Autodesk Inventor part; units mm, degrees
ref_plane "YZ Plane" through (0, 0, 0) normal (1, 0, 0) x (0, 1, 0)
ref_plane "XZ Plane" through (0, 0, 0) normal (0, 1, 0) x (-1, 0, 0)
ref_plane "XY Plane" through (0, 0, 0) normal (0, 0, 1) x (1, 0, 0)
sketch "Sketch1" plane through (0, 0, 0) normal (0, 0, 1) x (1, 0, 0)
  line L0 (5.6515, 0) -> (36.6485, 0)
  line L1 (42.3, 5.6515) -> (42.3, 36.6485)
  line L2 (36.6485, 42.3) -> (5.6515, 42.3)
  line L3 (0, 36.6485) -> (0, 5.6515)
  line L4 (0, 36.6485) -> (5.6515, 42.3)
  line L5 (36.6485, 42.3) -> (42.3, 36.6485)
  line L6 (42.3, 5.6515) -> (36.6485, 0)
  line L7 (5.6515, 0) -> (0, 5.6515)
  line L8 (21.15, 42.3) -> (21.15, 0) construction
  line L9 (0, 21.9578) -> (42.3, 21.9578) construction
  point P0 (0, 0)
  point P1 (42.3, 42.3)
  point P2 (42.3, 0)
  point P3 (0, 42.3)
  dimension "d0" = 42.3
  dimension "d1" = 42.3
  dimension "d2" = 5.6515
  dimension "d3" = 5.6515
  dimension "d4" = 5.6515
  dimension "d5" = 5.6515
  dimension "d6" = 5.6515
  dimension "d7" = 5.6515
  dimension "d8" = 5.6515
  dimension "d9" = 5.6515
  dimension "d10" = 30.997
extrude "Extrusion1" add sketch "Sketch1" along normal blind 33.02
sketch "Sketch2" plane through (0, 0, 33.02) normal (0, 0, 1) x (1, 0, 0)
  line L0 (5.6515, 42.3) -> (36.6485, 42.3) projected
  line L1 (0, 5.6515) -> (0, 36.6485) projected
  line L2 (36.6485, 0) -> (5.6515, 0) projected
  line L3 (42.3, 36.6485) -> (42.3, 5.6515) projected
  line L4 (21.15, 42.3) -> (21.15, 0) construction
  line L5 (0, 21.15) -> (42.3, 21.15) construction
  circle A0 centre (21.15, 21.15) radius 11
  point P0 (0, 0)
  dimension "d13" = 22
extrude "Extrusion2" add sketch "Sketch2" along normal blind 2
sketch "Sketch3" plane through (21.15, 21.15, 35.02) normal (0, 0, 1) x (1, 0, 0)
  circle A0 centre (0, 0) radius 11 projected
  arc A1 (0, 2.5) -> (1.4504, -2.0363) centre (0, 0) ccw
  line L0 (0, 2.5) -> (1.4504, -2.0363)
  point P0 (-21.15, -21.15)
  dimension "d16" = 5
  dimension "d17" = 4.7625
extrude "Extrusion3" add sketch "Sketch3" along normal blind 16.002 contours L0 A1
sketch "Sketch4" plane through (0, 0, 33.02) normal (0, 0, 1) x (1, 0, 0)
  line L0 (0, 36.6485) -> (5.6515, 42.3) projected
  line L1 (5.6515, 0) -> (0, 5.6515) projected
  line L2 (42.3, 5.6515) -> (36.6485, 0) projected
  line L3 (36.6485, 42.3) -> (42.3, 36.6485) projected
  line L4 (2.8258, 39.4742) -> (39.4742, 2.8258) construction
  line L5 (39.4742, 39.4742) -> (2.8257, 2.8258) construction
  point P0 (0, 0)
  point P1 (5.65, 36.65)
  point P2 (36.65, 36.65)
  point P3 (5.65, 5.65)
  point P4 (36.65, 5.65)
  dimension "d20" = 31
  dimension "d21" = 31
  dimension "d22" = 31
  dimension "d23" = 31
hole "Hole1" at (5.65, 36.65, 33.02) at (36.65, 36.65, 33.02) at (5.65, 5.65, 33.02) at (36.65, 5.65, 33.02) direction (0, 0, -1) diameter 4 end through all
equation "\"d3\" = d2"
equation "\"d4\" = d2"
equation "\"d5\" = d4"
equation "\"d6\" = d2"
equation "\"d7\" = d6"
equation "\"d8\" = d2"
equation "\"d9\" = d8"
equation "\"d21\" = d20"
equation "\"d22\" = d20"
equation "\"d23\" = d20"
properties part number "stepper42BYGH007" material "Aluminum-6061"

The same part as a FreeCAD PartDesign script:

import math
import FreeCAD as App
import Part
import Sketcher

V = App.Vector
Q = App.Units.Quantity

doc = App.newDocument("Part")
body = doc.addObject("PartDesign::Body", "Body")

# Sketch on XY plane
sketch1 = body.newObject("Sketcher::SketchObject", "Sketch")
sketch1.AttachmentSupport = (doc.getObject("XY_Plane"), [""])
sketch1.MapMode = "FlatFace"
sketch1.addGeometry([
    Part.LineSegment(V(0, 6, 0), V(6, 0, 0)),  # 0
    Part.LineSegment(V(6, 0, 0), V(37, 0, 0)),  # 1
    Part.LineSegment(V(37, 0, 0), V(42, 6, 0)),  # 2
    Part.LineSegment(V(42, 6, 0), V(42, 37, 0)),  # 3
    Part.LineSegment(V(42, 37, 0), V(37, 42, 0)),  # 4
    Part.LineSegment(V(37, 42, 0), V(6, 42, 0)),  # 5
    Part.LineSegment(V(6, 42, 0), V(0, 37, 0)),  # 6
    Part.LineSegment(V(0, 37, 0), V(0, 6, 0)),  # 7
], False)
sketch1.addConstraint([
    Sketcher.Constraint("Coincident", 0, 2, 1, 1),
    Sketcher.Constraint("Coincident", 1, 2, 2, 1),
    Sketcher.Constraint("Coincident", 2, 2, 3, 1),
    Sketcher.Constraint("Coincident", 3, 2, 4, 1),
    Sketcher.Constraint("Coincident", 4, 2, 5, 1),
    Sketcher.Constraint("Coincident", 5, 2, 6, 1),
    Sketcher.Constraint("Coincident", 6, 2, 7, 1),
    Sketcher.Constraint("Coincident", 7, 2, 0, 1),
    Sketcher.Constraint("Horizontal", 1),
    Sketcher.Constraint("Vertical", 3),
    Sketcher.Constraint("Horizontal", 5),
    Sketcher.Constraint("Vertical", 7),
    Sketcher.Constraint("PointOnObject", 0, 2, -1),
    Sketcher.Constraint("PointOnObject", 6, 2, -2),
    Sketcher.Constraint("Perpendicular", 0, 2),
    Sketcher.Constraint("Perpendicular", 2, 4),
    Sketcher.Constraint("Perpendicular", 4, 6),
    Sketcher.Constraint("Horizontal", 3, 2, 6, 2),
    Sketcher.Constraint("Horizontal", 2, 2, 7, 2),
    Sketcher.Constraint("Vertical", 1, 2, 4, 2),
    Sketcher.Constraint("Vertical", 0, 2, 5, 2),
    Sketcher.Constraint("Equal", 5, 3),
    Sketcher.Constraint("DistanceX", -1, 1, 2, 2, 42.3),
    Sketcher.Constraint("DistanceX", 1, 1, 1, 2, 30.997),
])
pad1 = body.newObject("PartDesign::Pad", "Pad")
pad1.Profile = sketch1
pad1.Length = 33.02

# Sketch on XY plane
sketch2 = body.newObject("Sketcher::SketchObject", "Sketch001")
sketch2.AttachmentSupport = (doc.getObject("XY_Plane"), [""])
sketch2.MapMode = "FlatFace"
sketch2.AttachmentOffset = App.Placement(V(0, 0, 33.02), App.Rotation())
sketch2.addGeometry(Part.Circle(V(21, 21, 0), V(0, 0, 1), 11), False)
sketch2.addConstraint([
    Sketcher.Constraint("Diameter", 0, 22.0),
    Sketcher.Constraint("DistanceX", -1, 1, 0, 3, 21.15),
    Sketcher.Constraint("DistanceY", -1, 1, 0, 3, 21.15),
])
pad2 = body.newObject("PartDesign::Pad", "Pad001")
pad2.Profile = sketch2
pad2.Length = 2

# Sketch on XY plane
sketch3 = body.newObject("Sketcher::SketchObject", "Sketch002")
sketch3.AttachmentSupport = (doc.getObject("XY_Plane"), [""])
sketch3.MapMode = "FlatFace"
sketch3.AttachmentOffset = App.Placement(V(0, 0, 35.02), App.Rotation())
sketch3.addGeometry([
    Part.LineSegment(V(22.6, 19.1, 0), V(21.1, 23.6, 0)),
    Part.ArcOfCircle(Part.Circle(V(21.1, 21.1, 0), V(0, 0, 1), 2.5), math.radians(90), math.radians(305)),
], False)
sketch3.addConstraint([
    Sketcher.Constraint("Coincident", 0, 1, 1, 2),
    Sketcher.Constraint("Coincident", 1, 1, 0, 2),
    Sketcher.Constraint("Radius", 1, 2.5),
    Sketcher.Constraint("Distance", 0, 4.7625),
    Sketcher.Constraint("Angle", 0, Q("107.7307 deg")),
    Sketcher.Constraint("DistanceX", -1, 1, 1, 3, 21.15),
    Sketcher.Constraint("DistanceY", -1, 1, 1, 3, 21.15),
])
pad3 = body.newObject("PartDesign::Pad", "Pad002")
pad3.Profile = sketch3
pad3.Length = 16.002

# Sketch on XY plane
sketch4 = body.newObject("Sketcher::SketchObject", "Sketch003")
sketch4.AttachmentSupport = (doc.getObject("XY_Plane"), [""])
sketch4.MapMode = "FlatFace"
sketch4.AttachmentOffset = App.Placement(V(0, 0, 33.02), App.Rotation())
sketch4.addGeometry([
    Part.Circle(V(5.7, 36.6, 0), V(0, 0, 1), 2),
    Part.Circle(V(36.6, 36.6, 0), V(0, 0, 1), 2),
    Part.Circle(V(5.7, 5.7, 0), V(0, 0, 1), 2),
    Part.Circle(V(36.6, 5.7, 0), V(0, 0, 1), 2),
], False)
sketch4.addConstraint([
    Sketcher.Constraint("Equal", 0, 1),
    Sketcher.Constraint("Equal", 1, 2),
    Sketcher.Constraint("Equal", 2, 3),
    Sketcher.Constraint("Horizontal", 0, 3, 1, 3),
    Sketcher.Constraint("Horizontal", 2, 3, 3, 3),
    Sketcher.Constraint("Vertical", 0, 3, 2, 3),
    Sketcher.Constraint("Vertical", 1, 3, 3, 3),
    Sketcher.Constraint("Diameter", 0, 4.0),
    Sketcher.Constraint("DistanceX", 0, 3, 1, 3, 31.0),
    Sketcher.Constraint("DistanceY", 2, 3, 0, 3, 31.0),
    Sketcher.Constraint("DistanceX", -1, 1, 0, 3, 5.65),
    Sketcher.Constraint("DistanceY", -1, 1, 0, 3, 36.65),
])
doc.recompute()
hole = body.newObject("PartDesign::Hole", "Hole")
hole.Profile = sketch4
hole.ThreadType = "None"
hole.Diameter = 4
hole.DepthType = "ThroughAll"

doc.recompute()
